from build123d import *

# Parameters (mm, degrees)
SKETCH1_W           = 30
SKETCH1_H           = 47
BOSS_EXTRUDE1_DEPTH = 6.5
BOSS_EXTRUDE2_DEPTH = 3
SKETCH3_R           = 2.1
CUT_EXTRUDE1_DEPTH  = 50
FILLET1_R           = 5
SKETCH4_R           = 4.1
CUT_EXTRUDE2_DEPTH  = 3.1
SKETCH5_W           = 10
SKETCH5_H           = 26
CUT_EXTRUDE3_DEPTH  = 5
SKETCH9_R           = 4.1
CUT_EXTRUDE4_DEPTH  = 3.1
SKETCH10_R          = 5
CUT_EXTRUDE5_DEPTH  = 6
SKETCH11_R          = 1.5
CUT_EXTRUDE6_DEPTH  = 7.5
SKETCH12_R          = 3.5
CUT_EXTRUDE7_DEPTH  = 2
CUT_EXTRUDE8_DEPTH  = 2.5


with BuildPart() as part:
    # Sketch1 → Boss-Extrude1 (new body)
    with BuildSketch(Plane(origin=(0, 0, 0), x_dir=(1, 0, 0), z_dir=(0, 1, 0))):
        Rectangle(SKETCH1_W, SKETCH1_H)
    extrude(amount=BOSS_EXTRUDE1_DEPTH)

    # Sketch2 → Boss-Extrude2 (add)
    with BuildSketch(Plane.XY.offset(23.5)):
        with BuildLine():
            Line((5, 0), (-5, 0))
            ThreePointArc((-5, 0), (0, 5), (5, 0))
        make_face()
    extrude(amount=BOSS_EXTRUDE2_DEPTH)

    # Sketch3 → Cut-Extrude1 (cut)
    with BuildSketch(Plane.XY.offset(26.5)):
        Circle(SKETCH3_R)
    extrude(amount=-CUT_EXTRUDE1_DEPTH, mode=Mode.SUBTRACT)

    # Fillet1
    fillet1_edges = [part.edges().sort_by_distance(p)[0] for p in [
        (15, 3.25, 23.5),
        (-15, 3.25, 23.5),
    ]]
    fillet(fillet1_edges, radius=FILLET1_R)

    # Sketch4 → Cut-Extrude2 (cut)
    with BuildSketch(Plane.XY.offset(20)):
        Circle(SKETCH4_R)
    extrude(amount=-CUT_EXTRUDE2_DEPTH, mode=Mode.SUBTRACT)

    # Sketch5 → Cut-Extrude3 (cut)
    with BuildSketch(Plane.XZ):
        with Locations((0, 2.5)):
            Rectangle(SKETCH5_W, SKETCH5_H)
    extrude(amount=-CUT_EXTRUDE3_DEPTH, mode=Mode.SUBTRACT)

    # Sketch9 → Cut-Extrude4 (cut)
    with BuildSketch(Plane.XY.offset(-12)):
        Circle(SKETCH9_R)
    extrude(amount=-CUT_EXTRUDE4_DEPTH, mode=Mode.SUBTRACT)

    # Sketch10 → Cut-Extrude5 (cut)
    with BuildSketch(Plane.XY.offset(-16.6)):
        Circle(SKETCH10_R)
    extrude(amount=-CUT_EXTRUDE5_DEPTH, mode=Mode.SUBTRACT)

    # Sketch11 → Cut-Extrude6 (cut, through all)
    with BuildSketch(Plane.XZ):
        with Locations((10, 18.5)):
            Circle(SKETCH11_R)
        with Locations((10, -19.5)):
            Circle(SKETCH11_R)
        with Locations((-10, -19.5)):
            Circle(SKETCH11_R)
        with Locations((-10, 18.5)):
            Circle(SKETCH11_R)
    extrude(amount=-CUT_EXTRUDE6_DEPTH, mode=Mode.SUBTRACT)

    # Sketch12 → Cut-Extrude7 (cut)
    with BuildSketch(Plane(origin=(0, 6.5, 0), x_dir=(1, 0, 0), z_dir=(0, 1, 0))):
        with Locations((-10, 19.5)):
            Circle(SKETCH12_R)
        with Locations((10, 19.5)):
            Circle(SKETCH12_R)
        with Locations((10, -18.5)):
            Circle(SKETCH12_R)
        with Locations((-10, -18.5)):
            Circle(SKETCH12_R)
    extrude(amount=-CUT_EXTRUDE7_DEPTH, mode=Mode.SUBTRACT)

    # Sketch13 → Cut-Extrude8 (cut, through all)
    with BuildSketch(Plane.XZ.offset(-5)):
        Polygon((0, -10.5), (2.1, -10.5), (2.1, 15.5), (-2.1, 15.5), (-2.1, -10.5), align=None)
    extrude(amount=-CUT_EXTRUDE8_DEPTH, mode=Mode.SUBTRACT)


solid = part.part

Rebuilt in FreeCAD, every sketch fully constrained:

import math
import FreeCAD as App
import Part
import Sketcher

V = App.Vector


def edges_at(feature, points):
    """Names of the edges that pass closest to the given points."""
    edges = feature.Shape.Edges
    near = lambda p: min(range(len(edges)), key=lambda i: edges[i].distToShape(Part.Vertex(*p))[0])
    return sorted({f"Edge{near(p) + 1}" for p in points})

doc = App.newDocument("Part")
body = doc.addObject("PartDesign::Body", "Body")

sketch1 = body.newObject("Sketcher::SketchObject", "Sketch")
sketch1.AttachmentSupport = (doc.getObject("XZ_Plane"), [""])
sketch1.MapMode = "FlatFace"
sketch1.addGeometry([
    Part.LineSegment(V(-15, -24, 0), V(-15, 24, 0)),
    Part.LineSegment(V(-15, 24, 0), V(15, 24, 0)),
    Part.LineSegment(V(15, 24, 0), V(15, -24, 0)),
    Part.LineSegment(V(15, -24, 0), V(-15, -24, 0)),
], False)
sketch1.addConstraint([
    Sketcher.Constraint("Coincident", 0, 2, 1, 1),
    Sketcher.Constraint("Coincident", 1, 2, 2, 1),
    Sketcher.Constraint("Coincident", 2, 2, 3, 1),
    Sketcher.Constraint("Coincident", 3, 2, 0, 1),
    Sketcher.Constraint("Vertical", 0),
    Sketcher.Constraint("Horizontal", 1),
    Sketcher.Constraint("Vertical", 2),
    Sketcher.Constraint("Horizontal", 3),
    Sketcher.Constraint("Symmetric", 0, 2, 2, 2, -1, 1),
    Sketcher.Constraint("DistanceX", 1, 1, 1, 2, 30.0),
    Sketcher.Constraint("DistanceY", 0, 1, 0, 2, 47.0),
])
pad1 = body.newObject("PartDesign::Pad", "Pad")
pad1.Profile = sketch1
pad1.Length = 6.5
pad1.Reversed = True

sketch2 = body.newObject("Sketcher::SketchObject", "Sketch001")
sketch2.AttachmentSupport = (doc.getObject("XY_Plane"), [""])
sketch2.MapMode = "FlatFace"
sketch2.AttachmentOffset = App.Placement(V(0, 0, 23.5), App.Rotation())
sketch2.addGeometry([
    Part.LineSegment(V(-5, 0, 0), V(5, 0, 0)),
    Part.ArcOfCircle(Part.Circle(V(0, 0, 0), V(0, 0, 1), 5), math.radians(0), math.radians(180)),
], False)
sketch2.addConstraint([
    Sketcher.Constraint("Coincident", 0, 1, 1, 2),
    Sketcher.Constraint("Coincident", 1, 1, 0, 2),
    Sketcher.Constraint("Horizontal", 0),
    Sketcher.Constraint("Coincident", 1, 3, -1, 1),
    Sketcher.Constraint("PointOnObject", 0, 1, -1),
    Sketcher.Constraint("Radius", 1, 5.0),
])
pad2 = body.newObject("PartDesign::Pad", "Pad001")
pad2.Profile = sketch2
pad2.Length = 3

sketch3 = body.newObject("Sketcher::SketchObject", "Sketch002")
sketch3.AttachmentSupport = (doc.getObject("XY_Plane"), [""])
sketch3.MapMode = "FlatFace"
sketch3.AttachmentOffset = App.Placement(V(0, 0, 26.5), App.Rotation())
sketch3.addGeometry(Part.Circle(V(0, 0, 0), V(0, 0, 1), 2.1), False)
sketch3.addConstraint([
    Sketcher.Constraint("Coincident", 0, 3, -1, 1),
    Sketcher.Constraint("Diameter", 0, 4.2),
])
pocket1 = body.newObject("PartDesign::Pocket", "Pocket")
pocket1.Profile = sketch3
pocket1.Length = 50
doc.recompute()

fillet = body.newObject("PartDesign::Fillet", "Fillet")
fillet.Base = (pocket1, edges_at(pocket1, [(15, 3.25, 23.5), (-15, 3.25, 23.5)]))
fillet.Radius = 5

sketch4 = body.newObject("Sketcher::SketchObject", "Sketch003")
sketch4.AttachmentSupport = (doc.getObject("XY_Plane"), [""])
sketch4.MapMode = "FlatFace"
sketch4.AttachmentOffset = App.Placement(V(0, 0, 20), App.Rotation())
sketch4.addGeometry(Part.Circle(V(0, 0, 0), V(0, 0, 1), 4.1), False)
sketch4.addConstraint([
    Sketcher.Constraint("Coincident", 0, 3, -1, 1),
    Sketcher.Constraint("Diameter", 0, 8.2),
])
pocket2 = body.newObject("PartDesign::Pocket", "Pocket001")
pocket2.Profile = sketch4
pocket2.Length = 3.1

sketch5 = body.newObject("Sketcher::SketchObject", "Sketch004")
sketch5.AttachmentSupport = (doc.getObject("XZ_Plane"), [""])
sketch5.MapMode = "FlatFace"
sketch5.addGeometry([
    Part.LineSegment(V(-5, 16, 0), V(-5, -10, 0)),
    Part.LineSegment(V(-5, -10, 0), V(5, -10, 0)),
    Part.LineSegment(V(5, -10, 0), V(5, 16, 0)),
    Part.LineSegment(V(5, 16, 0), V(-5, 16, 0)),
], False)
sketch5.addConstraint([
    Sketcher.Constraint("Coincident", 0, 2, 1, 1),
    Sketcher.Constraint("Coincident", 1, 2, 2, 1),
    Sketcher.Constraint("Coincident", 2, 2, 3, 1),
    Sketcher.Constraint("Coincident", 3, 2, 0, 1),
    Sketcher.Constraint("Vertical", 0),
    Sketcher.Constraint("Horizontal", 1),
    Sketcher.Constraint("Vertical", 2),
    Sketcher.Constraint("Horizontal", 3),
    Sketcher.Constraint("DistanceX", 1, 1, 1, 2, 10.0),
    Sketcher.Constraint("DistanceY", 0, 2, 0, 1, 26.0),
    Sketcher.Constraint("DistanceX", 0, 2, -1, 1, 5.0),
    Sketcher.Constraint("DistanceY", 0, 2, -1, 1, 10.5),
])
pocket3 = body.newObject("PartDesign::Pocket", "Pocket002")
pocket3.Profile = sketch5
pocket3.Length = 5

sketch6 = body.newObject("Sketcher::SketchObject", "Sketch005")
sketch6.AttachmentSupport = (doc.getObject("XY_Plane"), [""])
sketch6.MapMode = "FlatFace"
sketch6.AttachmentOffset = App.Placement(V(0, 0, -12), App.Rotation())
sketch6.addGeometry(Part.Circle(V(0, 0, 0), V(0, 0, 1), 4.1), False)
sketch6.addConstraint([
    Sketcher.Constraint("Coincident", 0, 3, -1, 1),
    Sketcher.Constraint("Diameter", 0, 8.2),
])
pocket4 = body.newObject("PartDesign::Pocket", "Pocket003")
pocket4.Profile = sketch6
pocket4.Length = 3.1

sketch7 = body.newObject("Sketcher::SketchObject", "Sketch006")
sketch7.AttachmentSupport = (doc.getObject("XY_Plane"), [""])
sketch7.MapMode = "FlatFace"
sketch7.AttachmentOffset = App.Placement(V(0, 0, -16.6), App.Rotation())
sketch7.addGeometry(Part.Circle(V(0, 0, 0), V(0, 0, 1), 5), False)
sketch7.addConstraint([
    Sketcher.Constraint("Coincident", 0, 3, -1, 1),
    Sketcher.Constraint("Diameter", 0, 10.0),
])
pocket5 = body.newObject("PartDesign::Pocket", "Pocket004")
pocket5.Profile = sketch7
pocket5.Length = 6

sketch8 = body.newObject("Sketcher::SketchObject", "Sketch007")
sketch8.AttachmentSupport = (doc.getObject("XZ_Plane"), [""])
sketch8.MapMode = "FlatFace"
sketch8.addGeometry([
    Part.Circle(V(10, 18.5, 0), V(0, 0, 1), 1.5),
    Part.Circle(V(10, -19.5, 0), V(0, 0, 1), 1.5),
    Part.Circle(V(-10, -19.5, 0), V(0, 0, 1), 1.5),
    Part.Circle(V(-10, 18.5, 0), V(0, 0, 1), 1.5),
], False)
sketch8.addConstraint([
    Sketcher.Constraint("Equal", 0, 1),
    Sketcher.Constraint("Equal", 1, 2),
    Sketcher.Constraint("Equal", 2, 3),
    Sketcher.Constraint("Symmetric", 1, 3, 2, 3, -2),
    Sketcher.Constraint("Symmetric", 0, 3, 3, 3, -2),
    Sketcher.Constraint("Vertical", 0, 3, 1, 3),
    Sketcher.Constraint("Diameter", 0, 3.0),
    Sketcher.Constraint("DistanceX", -1, 1, 0, 3, 10.0),
    Sketcher.Constraint("DistanceY", 1, 3, 0, 3, 38.0),
    Sketcher.Constraint("DistanceY", -1, 1, 0, 3, 18.5),
])
pocket6 = body.newObject("PartDesign::Pocket", "Pocket005")
pocket6.Profile = sketch8
pocket6.Type = "ThroughAll"

sketch9 = body.newObject("Sketcher::SketchObject", "Sketch008")
sketch9.AttachmentSupport = (doc.getObject("XZ_Plane"), [""])
sketch9.MapMode = "FlatFace"
sketch9.AttachmentOffset = App.Placement(V(0, 0, -6.5), App.Rotation())
sketch9.addGeometry([
    Part.Circle(V(-10, -19.5, 0), V(0, 0, 1), 3.5),
    Part.Circle(V(10, -19.5, 0), V(0, 0, 1), 3.5),
    Part.Circle(V(10, 18.5, 0), V(0, 0, 1), 3.5),
    Part.Circle(V(-10, 18.5, 0), V(0, 0, 1), 3.5),
], False)
sketch9.addConstraint([
    Sketcher.Constraint("Equal", 0, 1),
    Sketcher.Constraint("Equal", 1, 2),
    Sketcher.Constraint("Equal", 2, 3),
    Sketcher.Constraint("Symmetric", 0, 3, 1, 3, -2),
    Sketcher.Constraint("Symmetric", 2, 3, 3, 3, -2),
    Sketcher.Constraint("Vertical", 1, 3, 2, 3),
    Sketcher.Constraint("Diameter", 0, 7.0),
    Sketcher.Constraint("DistanceX", 0, 3, -1, 1, 10.0),
    Sketcher.Constraint("DistanceY", 1, 3, 2, 3, 38.0),
    Sketcher.Constraint("DistanceY", 0, 3, -1, 1, 19.5),
])
pocket7 = body.newObject("PartDesign::Pocket", "Pocket006")
pocket7.Profile = sketch9
pocket7.Length = 2
pocket7.Reversed = True

sketch10 = body.newObject("Sketcher::SketchObject", "Sketch009")
sketch10.AttachmentSupport = (doc.getObject("XZ_Plane"), [""])
sketch10.MapMode = "FlatFace"
sketch10.AttachmentOffset = App.Placement(V(0, 0, -5), App.Rotation())
sketch10.addGeometry([
    Part.LineSegment(V(2.1, -10.5, 0), V(2.1, 15.5, 0)),
    Part.LineSegment(V(2.1, 15.5, 0), V(-2.1, 15.5, 0)),
    Part.LineSegment(V(-2.1, 15.5, 0), V(-2.1, -10.5, 0)),
    Part.LineSegment(V(-2.1, -10.5, 0), V(2.1, -10.5, 0)),
], False)
sketch10.addConstraint([
    Sketcher.Constraint("Coincident", 0, 2, 1, 1),
    Sketcher.Constraint("Coincident", 1, 2, 2, 1),
    Sketcher.Constraint("Coincident", 2, 2, 3, 1),
    Sketcher.Constraint("Coincident", 3, 2, 0, 1),
    Sketcher.Constraint("Vertical", 0),
    Sketcher.Constraint("Horizontal", 1),
    Sketcher.Constraint("Vertical", 2),
    Sketcher.Constraint("Horizontal", 3),
    Sketcher.Constraint("DistanceY", 0, 1, 0, 2, 26.0),
    Sketcher.Constraint("DistanceX", 1, 2, 1, 1, 4.2),
    Sketcher.Constraint("DistanceX", -1, 1, 0, 2, 2.1),
    Sketcher.Constraint("DistanceY", -1, 1, 0, 2, 15.5),
])
pocket8 = body.newObject("PartDesign::Pocket", "Pocket007")
pocket8.Profile = sketch10
pocket8.Type = "ThroughAll"

doc.recompute()
